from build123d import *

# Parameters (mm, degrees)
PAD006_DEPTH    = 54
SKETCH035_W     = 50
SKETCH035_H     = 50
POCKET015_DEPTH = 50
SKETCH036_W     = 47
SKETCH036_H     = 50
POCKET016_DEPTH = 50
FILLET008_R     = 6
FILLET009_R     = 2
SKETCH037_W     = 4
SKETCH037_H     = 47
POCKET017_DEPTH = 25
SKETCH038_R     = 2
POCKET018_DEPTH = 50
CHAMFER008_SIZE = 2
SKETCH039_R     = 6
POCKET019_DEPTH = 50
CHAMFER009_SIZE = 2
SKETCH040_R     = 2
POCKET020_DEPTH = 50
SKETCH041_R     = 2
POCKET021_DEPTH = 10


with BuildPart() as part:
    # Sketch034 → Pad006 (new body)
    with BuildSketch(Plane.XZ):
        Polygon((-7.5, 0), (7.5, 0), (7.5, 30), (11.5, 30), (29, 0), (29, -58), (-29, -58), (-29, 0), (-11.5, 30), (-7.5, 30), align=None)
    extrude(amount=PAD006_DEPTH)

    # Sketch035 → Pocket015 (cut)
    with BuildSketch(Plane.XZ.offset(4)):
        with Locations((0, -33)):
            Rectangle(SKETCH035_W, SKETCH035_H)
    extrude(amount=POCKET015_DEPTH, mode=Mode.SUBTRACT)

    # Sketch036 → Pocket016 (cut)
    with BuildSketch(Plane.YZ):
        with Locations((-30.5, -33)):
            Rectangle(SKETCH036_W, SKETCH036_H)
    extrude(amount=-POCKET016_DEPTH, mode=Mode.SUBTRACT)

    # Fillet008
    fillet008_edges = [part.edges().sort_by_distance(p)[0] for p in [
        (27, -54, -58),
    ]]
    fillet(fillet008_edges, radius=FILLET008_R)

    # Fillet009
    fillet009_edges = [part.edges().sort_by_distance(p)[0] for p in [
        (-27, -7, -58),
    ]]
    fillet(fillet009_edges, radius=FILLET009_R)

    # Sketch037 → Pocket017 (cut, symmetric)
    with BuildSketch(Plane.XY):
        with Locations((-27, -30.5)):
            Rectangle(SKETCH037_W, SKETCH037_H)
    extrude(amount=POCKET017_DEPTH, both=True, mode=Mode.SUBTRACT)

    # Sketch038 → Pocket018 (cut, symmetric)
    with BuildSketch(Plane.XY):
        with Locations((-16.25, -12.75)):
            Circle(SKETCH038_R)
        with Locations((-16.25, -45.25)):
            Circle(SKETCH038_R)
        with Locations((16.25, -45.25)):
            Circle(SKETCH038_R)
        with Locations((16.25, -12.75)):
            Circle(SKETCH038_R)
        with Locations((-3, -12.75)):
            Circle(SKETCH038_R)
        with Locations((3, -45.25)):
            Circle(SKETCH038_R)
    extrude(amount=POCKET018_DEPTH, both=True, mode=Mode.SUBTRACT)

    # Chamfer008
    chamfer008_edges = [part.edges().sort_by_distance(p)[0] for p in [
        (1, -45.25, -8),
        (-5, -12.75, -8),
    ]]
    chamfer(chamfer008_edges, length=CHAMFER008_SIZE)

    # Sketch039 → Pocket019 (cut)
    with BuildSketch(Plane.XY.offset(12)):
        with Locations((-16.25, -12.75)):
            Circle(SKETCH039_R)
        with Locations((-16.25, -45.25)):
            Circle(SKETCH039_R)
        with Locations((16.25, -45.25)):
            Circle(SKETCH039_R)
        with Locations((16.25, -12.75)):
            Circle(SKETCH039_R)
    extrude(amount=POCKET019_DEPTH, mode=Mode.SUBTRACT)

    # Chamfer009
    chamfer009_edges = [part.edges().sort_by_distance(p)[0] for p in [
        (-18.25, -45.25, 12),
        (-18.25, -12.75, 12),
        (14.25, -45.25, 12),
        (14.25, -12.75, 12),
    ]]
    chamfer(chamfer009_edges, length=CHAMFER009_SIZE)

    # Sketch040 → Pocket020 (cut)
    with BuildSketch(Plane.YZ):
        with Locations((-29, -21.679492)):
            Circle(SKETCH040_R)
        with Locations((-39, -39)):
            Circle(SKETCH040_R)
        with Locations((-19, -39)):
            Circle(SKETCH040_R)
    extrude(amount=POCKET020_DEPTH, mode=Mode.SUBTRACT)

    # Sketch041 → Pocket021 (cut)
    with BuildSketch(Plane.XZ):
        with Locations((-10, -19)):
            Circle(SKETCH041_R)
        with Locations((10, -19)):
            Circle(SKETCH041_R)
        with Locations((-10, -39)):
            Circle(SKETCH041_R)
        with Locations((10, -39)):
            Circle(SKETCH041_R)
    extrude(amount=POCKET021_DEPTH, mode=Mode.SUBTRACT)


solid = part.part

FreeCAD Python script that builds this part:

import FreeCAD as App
import Part
import Sketcher


def edges_at(feature, points):
    """Names of the edges that pass closest to the given points."""
    edges = feature.Shape.Edges
    near = lambda p: min(range(len(edges)), key=lambda i: edges[i].distToShape(Part.Vertex(*p))[0])
    return sorted({f"Edge{near(p) + 1}" for p in points})

doc = App.newDocument("Part")
body = doc.addObject("PartDesign::Body", "Body")

# Sketch on XZ plane
sketch1 = body.newObject("Sketcher::SketchObject", "Sketch")
sketch1.AttachmentSupport = (doc.getObject("XZ_Plane"), [""])
sketch1.MapMode = "FlatFace"
sketch1.addGeometry(Part.LineSegment(App.Vector(7.5, 0, 0), App.Vector(-7.5, 0, 0)), False)
sketch1.addGeometry(Part.LineSegment(App.Vector(-7.5, 0, 0), App.Vector(-7.5, 30, 0)), False)
sketch1.addGeometry(Part.LineSegment(App.Vector(-7.5, 30, 0), App.Vector(-11.5, 30, 0)), False)
sketch1.addGeometry(Part.LineSegment(App.Vector(-11.5, 30, 0), App.Vector(-29, 0, 0)), False)
sketch1.addGeometry(Part.LineSegment(App.Vector(-29, 0, 0), App.Vector(-29, -58, 0)), False)
sketch1.addGeometry(Part.LineSegment(App.Vector(-29, -58, 0), App.Vector(29, -58, 0)), False)
sketch1.addGeometry(Part.LineSegment(App.Vector(29, -58, 0), App.Vector(29, 0, 0)), False)
sketch1.addGeometry(Part.LineSegment(App.Vector(29, 0, 0), App.Vector(11.5, 30, 0)), False)
sketch1.addGeometry(Part.LineSegment(App.Vector(11.5, 30, 0), App.Vector(7.5, 30, 0)), False)
sketch1.addGeometry(Part.LineSegment(App.Vector(7.5, 30, 0), App.Vector(7.5, 0, 0)), False)
sketch1.addConstraint(Sketcher.Constraint("Coincident", 0, 2, 1, 1))
sketch1.addConstraint(Sketcher.Constraint("Coincident", 1, 2, 2, 1))
sketch1.addConstraint(Sketcher.Constraint("Coincident", 2, 2, 3, 1))
sketch1.addConstraint(Sketcher.Constraint("Coincident", 3, 2, 4, 1))
sketch1.addConstraint(Sketcher.Constraint("Coincident", 4, 2, 5, 1))
sketch1.addConstraint(Sketcher.Constraint("Coincident", 5, 2, 6, 1))
sketch1.addConstraint(Sketcher.Constraint("Coincident", 6, 2, 7, 1))
sketch1.addConstraint(Sketcher.Constraint("Coincident", 7, 2, 8, 1))
sketch1.addConstraint(Sketcher.Constraint("Coincident", 8, 2, 9, 1))
sketch1.addConstraint(Sketcher.Constraint("Coincident", 9, 2, 0, 1))
sketch1.addConstraint(Sketcher.Constraint("Horizontal", 0))
sketch1.addConstraint(Sketcher.Constraint("Vertical", 1))
sketch1.addConstraint(Sketcher.Constraint("Horizontal", 2))
sketch1.addConstraint(Sketcher.Constraint("Vertical", 4))
sketch1.addConstraint(Sketcher.Constraint("Horizontal", 5))
sketch1.addConstraint(Sketcher.Constraint("Vertical", 6))
sketch1.addConstraint(Sketcher.Constraint("Horizontal", 8))
sketch1.addConstraint(Sketcher.Constraint("Vertical", 9))
sketch1.addConstraint(Sketcher.Constraint("Symmetric", 3, 2, 6, 2, -1, 1))
sketch1.addConstraint(Sketcher.Constraint("Symmetric", 0, 2, 9, 2, -1, 1))
sketch1.addConstraint(Sketcher.Constraint("Symmetric", 2, 2, 7, 2, -2))
sketch1.addConstraint(Sketcher.Constraint("PointOnObject", 3, 2, -1))
sketch1.addConstraint(Sketcher.Constraint("Equal", 5, 4))
sketch1.addConstraint(Sketcher.Constraint("DistanceX", 0, 2, 0, 1, 15.0))
sketch1.addConstraint(Sketcher.Constraint("DistanceX", 2, 2, 2, 1, 4.0))
sketch1.addConstraint(Sketcher.Constraint("DistanceX", 5, 1, 5, 2, 58.0))
sketch1.addConstraint(Sketcher.Constraint("DistanceY", 1, 1, 1, 2, 30.0))
pad1 = body.newObject("PartDesign::Pad", "Pad")
pad1.Profile = sketch1
pad1.Length = 54

# Sketch on XZ plane
sketch2 = body.newObject("Sketcher::SketchObject", "Sketch001")
sketch2.AttachmentSupport = (doc.getObject("XZ_Plane"), [""])
sketch2.MapMode = "FlatFace"
sketch2.AttachmentOffset = App.Placement(App.Vector(0, 0, 4), App.Rotation())
sketch2.addGeometry(Part.LineSegment(App.Vector(-25, -8, 0), App.Vector(-25, -58, 0)), False)
sketch2.addGeometry(Part.LineSegment(App.Vector(-25, -58, 0), App.Vector(25, -58, 0)), False)
sketch2.addGeometry(Part.LineSegment(App.Vector(25, -58, 0), App.Vector(25, -8, 0)), False)
sketch2.addGeometry(Part.LineSegment(App.Vector(25, -8, 0), App.Vector(-25, -8, 0)), False)
sketch2.addConstraint(Sketcher.Constraint("Coincident", 0, 2, 1, 1))
sketch2.addConstraint(Sketcher.Constraint("Coincident", 1, 2, 2, 1))
sketch2.addConstraint(Sketcher.Constraint("Coincident", 2, 2, 3, 1))
sketch2.addConstraint(Sketcher.Constraint("Coincident", 3, 2, 0, 1))
sketch2.addConstraint(Sketcher.Constraint("Vertical", 0))
sketch2.addConstraint(Sketcher.Constraint("Horizontal", 1))
sketch2.addConstraint(Sketcher.Constraint("Vertical", 2))
sketch2.addConstraint(Sketcher.Constraint("Horizontal", 3))
sketch2.addConstraint(Sketcher.Constraint("Equal", 3, 0))
sketch2.addConstraint(Sketcher.Constraint("DistanceX", 1, 1, 1, 2, 50.0))
sketch2.addConstraint(Sketcher.Constraint("DistanceX", 0, 2, -1, 1, 25.0))
sketch2.addConstraint(Sketcher.Constraint("DistanceY", 0, 2, -1, 1, 58.0))
pocket1 = body.newObject("PartDesign::Pocket", "Pocket")
pocket1.Profile = sketch2
pocket1.Length = 50
pocket1.Reversed = True

# Sketch on YZ plane
sketch3 = body.newObject("Sketcher::SketchObject", "Sketch002")
sketch3.AttachmentSupport = (doc.getObject("YZ_Plane"), [""])
sketch3.MapMode = "FlatFace"
sketch3.addGeometry(Part.LineSegment(App.Vector(-54, -8, 0), App.Vector(-54, -58, 0)), False)
sketch3.addGeometry(Part.LineSegment(App.Vector(-54, -58, 0), App.Vector(-7, -58, 0)), False)
sketch3.addGeometry(Part.LineSegment(App.Vector(-7, -58, 0), App.Vector(-7, -8, 0)), False)
sketch3.addGeometry(Part.LineSegment(App.Vector(-7, -8, 0), App.Vector(-54, -8, 0)), False)
sketch3.addConstraint(Sketcher.Constraint("Coincident", 0, 2, 1, 1))
sketch3.addConstraint(Sketcher.Constraint("Coincident", 1, 2, 2, 1))
sketch3.addConstraint(Sketcher.Constraint("Coincident", 2, 2, 3, 1))
sketch3.addConstraint(Sketcher.Constraint("Coincident", 3, 2, 0, 1))
sketch3.addConstraint(Sketcher.Constraint("Vertical", 0))
sketch3.addConstraint(Sketcher.Constraint("Horizontal", 1))
sketch3.addConstraint(Sketcher.Constraint("Vertical", 2))
sketch3.addConstraint(Sketcher.Constraint("Horizontal", 3))
sketch3.addConstraint(Sketcher.Constraint("DistanceX", 1, 1, 1, 2, 47.0))
sketch3.addConstraint(Sketcher.Constraint("DistanceY", 0, 2, 0, 1, 50.0))
sketch3.addConstraint(Sketcher.Constraint("DistanceX", 0, 2, -1, 1, 54.0))
sketch3.addConstraint(Sketcher.Constraint("DistanceY", 0, 2, -1, 1, 58.0))
pocket2 = body.newObject("PartDesign::Pocket", "Pocket001")
pocket2.Profile = sketch3
pocket2.Length = 50
doc.recompute()

fillet = body.newObject("PartDesign::Fillet", "Fillet")
fillet.Base = (pocket2, edges_at(pocket2, [(27, -54, -58)]))
fillet.Radius = 6
doc.recompute()

fillet2 = body.newObject("PartDesign::Fillet", "Fillet001")
fillet2.Base = (fillet, edges_at(fillet, [(-27, -7, -58)]))
fillet2.Radius = 2

# Sketch on XY plane
sketch4 = body.newObject("Sketcher::SketchObject", "Sketch003")
sketch4.AttachmentSupport = (doc.getObject("XY_Plane"), [""])
sketch4.MapMode = "FlatFace"
sketch4.addGeometry(Part.LineSegment(App.Vector(-29, -7, 0), App.Vector(-29, -54, 0)), False)
sketch4.addGeometry(Part.LineSegment(App.Vector(-29, -54, 0), App.Vector(-25, -54, 0)), False)
sketch4.addGeometry(Part.LineSegment(App.Vector(-25, -54, 0), App.Vector(-25, -7, 0)), False)
sketch4.addGeometry(Part.LineSegment(App.Vector(-25, -7, 0), App.Vector(-29, -7, 0)), False)
sketch4.addConstraint(Sketcher.Constraint("Coincident", 0, 2, 1, 1))
sketch4.addConstraint(Sketcher.Constraint("Coincident", 1, 2, 2, 1))
sketch4.addConstraint(Sketcher.Constraint("Coincident", 2, 2, 3, 1))
sketch4.addConstraint(Sketcher.Constraint("Coincident", 3, 2, 0, 1))
sketch4.addConstraint(Sketcher.Constraint("Vertical", 0))
sketch4.addConstraint(Sketcher.Constraint("Horizontal", 1))
sketch4.addConstraint(Sketcher.Constraint("Vertical", 2))
sketch4.addConstraint(Sketcher.Constraint("Horizontal", 3))
sketch4.addConstraint(Sketcher.Constraint("DistanceX", 1, 1, 1, 2, 4.0))
sketch4.addConstraint(Sketcher.Constraint("DistanceY", 0, 2, 0, 1, 47.0))
sketch4.addConstraint(Sketcher.Constraint("DistanceX", 0, 2, -1, 1, 29.0))
sketch4.addConstraint(Sketcher.Constraint("DistanceY", 0, 2, -1, 1, 54.0))
pocket3 = body.newObject("PartDesign::Pocket", "Pocket002")
pocket3.Profile = sketch4
pocket3.Length = 50
pocket3.Midplane = True

# Sketch on XY plane
sketch5 = body.newObject("Sketcher::SketchObject", "Sketch004")
sketch5.AttachmentSupport = (doc.getObject("XY_Plane"), [""])
sketch5.MapMode = "FlatFace"
sketch5.addGeometry(Part.Circle(App.Vector(-16.2, -12.8, 0), App.Vector(0, 0, 1), 2), False)
sketch5.addGeometry(Part.Circle(App.Vector(-16.2, -45.2, 0), App.Vector(0, 0, 1), 2), False)
sketch5.addGeometry(Part.Circle(App.Vector(16.2, -45.2, 0), App.Vector(0, 0, 1), 2), False)
sketch5.addGeometry(Part.Circle(App.Vector(16.2, -12.8, 0), App.Vector(0, 0, 1), 2), False)
sketch5.addGeometry(Part.Circle(App.Vector(-3, -12.8, 0), App.Vector(0, 0, 1), 2), False)
sketch5.addGeometry(Part.Circle(App.Vector(3, -45.2, 0), App.Vector(0, 0, 1), 2), False)
sketch5.addConstraint(Sketcher.Constraint("Equal", 0, 1))
sketch5.addConstraint(Sketcher.Constraint("Equal", 1, 2))
sketch5.addConstraint(Sketcher.Constraint("Equal", 2, 3))
sketch5.addConstraint(Sketcher.Constraint("Equal", 3, 4))
sketch5.addConstraint(Sketcher.Constraint("Equal", 4, 5))
sketch5.addConstraint(Sketcher.Constraint("Symmetric", 1, 3, 2, 3, -2))
sketch5.addConstraint(Sketcher.Constraint("Symmetric", 0, 3, 3, 3, -2))
sketch5.addConstraint(Sketcher.Constraint("Horizontal", 3, 3, 4, 3))
sketch5.addConstraint(Sketcher.Constraint("Horizontal", 2, 3, 5, 3))
sketch5.addConstraint(Sketcher.Constraint("Vertical", 0, 3, 1, 3))
sketch5.addConstraint(Sketcher.Constraint("Diameter", 0, 4.0))
sketch5.addConstraint(Sketcher.Constraint("DistanceX", 4, 3, -1, 1, 3.0))
sketch5.addConstraint(Sketcher.Constraint("DistanceX", -1, 1, 5, 3, 3.0))
sketch5.addConstraint(Sketcher.Constraint("DistanceY", 1, 3, 0, 3, 32.5))
sketch5.addConstraint(Sketcher.Constraint("DistanceX", 1, 3, 2, 3, 32.5))
sketch5.addConstraint(Sketcher.Constraint("DistanceY", 0, 3, -1, 1, 12.75))
pocket4 = body.newObject("PartDesign::Pocket", "Pocket003")
pocket4.Profile = sketch5
pocket4.Length = 100
pocket4.Midplane = True
doc.recompute()

chamfer = body.newObject("PartDesign::Chamfer", "Chamfer")
chamfer.Base = (pocket4, edges_at(pocket4, [(1, -45.25, -8), (-5, -12.75, -8)]))
chamfer.Size = 2

# Sketch on XY plane
sketch6 = body.newObject("Sketcher::SketchObject", "Sketch005")
sketch6.AttachmentSupport = (doc.getObject("XY_Plane"), [""])
sketch6.MapMode = "FlatFace"
sketch6.AttachmentOffset = App.Placement(App.Vector(0, 0, 12), App.Rotation())
sketch6.addGeometry(Part.Circle(App.Vector(-16, -13, 0), App.Vector(0, 0, 1), 6), False)
sketch6.addGeometry(Part.Circle(App.Vector(-16, -45, 0), App.Vector(0, 0, 1), 6), False)
sketch6.addGeometry(Part.Circle(App.Vector(16, -45, 0), App.Vector(0, 0, 1), 6), False)
sketch6.addGeometry(Part.Circle(App.Vector(16, -13, 0), App.Vector(0, 0, 1), 6), False)
sketch6.addConstraint(Sketcher.Constraint("Equal", 0, 1))
sketch6.addConstraint(Sketcher.Constraint("Equal", 1, 2))
sketch6.addConstraint(Sketcher.Constraint("Equal", 2, 3))
sketch6.addConstraint(Sketcher.Constraint("Symmetric", 1, 3, 2, 3, -2))
sketch6.addConstraint(Sketcher.Constraint("Symmetric", 0, 3, 3, 3, -2))
sketch6.addConstraint(Sketcher.Constraint("Vertical", 0, 3, 1, 3))
sketch6.addConstraint(Sketcher.Constraint("Diameter", 0, 12.0))
sketch6.addConstraint(Sketcher.Constraint("DistanceY", 1, 3, 0, 3, 32.5))
sketch6.addConstraint(Sketcher.Constraint("DistanceX", 1, 3, 2, 3, 32.5))
sketch6.addConstraint(Sketcher.Constraint("DistanceY", 0, 3, -1, 1, 12.75))
pocket5 = body.newObject("PartDesign::Pocket", "Pocket004")
pocket5.Profile = sketch6
pocket5.Length = 50
pocket5.Reversed = True
doc.recompute()

chamfer2 = body.newObject("PartDesign::Chamfer", "Chamfer001")
chamfer2.Base = (pocket5, edges_at(pocket5, [
    (-18.25, -45.25, 12),
    (-18.25, -12.75, 12),
    (14.25, -45.25, 12),
    (14.25, -12.75, 12),
]))
chamfer2.Size = 2

# Sketch on YZ plane
sketch7 = body.newObject("Sketcher::SketchObject", "Sketch006")
sketch7.AttachmentSupport = (doc.getObject("YZ_Plane"), [""])
sketch7.MapMode = "FlatFace"
sketch7.addGeometry(Part.Circle(App.Vector(-29, -21.7, 0), App.Vector(0, 0, 1), 2), False)
sketch7.addGeometry(Part.Circle(App.Vector(-39, -39, 0), App.Vector(0, 0, 1), 2), False)
sketch7.addGeometry(Part.Circle(App.Vector(-19, -39, 0), App.Vector(0, 0, 1), 2), False)
sketch7.addConstraint(Sketcher.Constraint("Equal", 0, 1))
sketch7.addConstraint(Sketcher.Constraint("Equal", 1, 2))
sketch7.addConstraint(Sketcher.Constraint("Horizontal", 1, 3, 2, 3))
sketch7.addConstraint(Sketcher.Constraint("Diameter", 0, 4.0))
sketch7.addConstraint(Sketcher.Constraint("DistanceX", 0, 3, -1, 1, 29.0))
sketch7.addConstraint(Sketcher.Constraint("DistanceX", 1, 3, -1, 1, 39.0))
sketch7.addConstraint(Sketcher.Constraint("DistanceY", 1, 3, -1, 1, 39.0))
sketch7.addConstraint(Sketcher.Constraint("DistanceX", 2, 3, -1, 1, 19.0))
sketch7.addConstraint(Sketcher.Constraint("DistanceY", 0, 3, -1, 1, 21.679492))
pocket6 = body.newObject("PartDesign::Pocket", "Pocket005")
pocket6.Profile = sketch7
pocket6.Length = 50
pocket6.Reversed = True

# Sketch on XZ plane
sketch8 = body.newObject("Sketcher::SketchObject", "Sketch007")
sketch8.AttachmentSupport = (doc.getObject("XZ_Plane"), [""])
sketch8.MapMode = "FlatFace"
sketch8.addGeometry(Part.Circle(App.Vector(-10, -19, 0), App.Vector(0, 0, 1), 2), False)
sketch8.addGeometry(Part.Circle(App.Vector(10, -19, 0), App.Vector(0, 0, 1), 2), False)
sketch8.addGeometry(Part.Circle(App.Vector(-10, -39, 0), App.Vector(0, 0, 1), 2), False)
sketch8.addGeometry(Part.Circle(App.Vector(10, -39, 0), App.Vector(0, 0, 1), 2), False)
sketch8.addConstraint(Sketcher.Constraint("Equal", 0, 1))
sketch8.addConstraint(Sketcher.Constraint("Equal", 1, 2))
sketch8.addConstraint(Sketcher.Constraint("Equal", 2, 3))
sketch8.addConstraint(Sketcher.Constraint("Symmetric", 0, 3, 1, 3, -2))
sketch8.addConstraint(Sketcher.Constraint("Symmetric", 2, 3, 3, 3, -2))
sketch8.addConstraint(Sketcher.Constraint("Vertical", 0, 3, 2, 3))
sketch8.addConstraint(Sketcher.Constraint("Diameter", 0, 4.0))
sketch8.addConstraint(Sketcher.Constraint("DistanceX", 0, 3, -1, 1, 10.0))
sketch8.addConstraint(Sketcher.Constraint("DistanceY", 0, 3, -1, 1, 19.0))
sketch8.addConstraint(Sketcher.Constraint("DistanceY", 2, 3, -1, 1, 39.0))
pocket7 = body.newObject("PartDesign::Pocket", "Pocket006")
pocket7.Profile = sketch8
pocket7.Length = 10
pocket7.Reversed = True

doc.recompute()
